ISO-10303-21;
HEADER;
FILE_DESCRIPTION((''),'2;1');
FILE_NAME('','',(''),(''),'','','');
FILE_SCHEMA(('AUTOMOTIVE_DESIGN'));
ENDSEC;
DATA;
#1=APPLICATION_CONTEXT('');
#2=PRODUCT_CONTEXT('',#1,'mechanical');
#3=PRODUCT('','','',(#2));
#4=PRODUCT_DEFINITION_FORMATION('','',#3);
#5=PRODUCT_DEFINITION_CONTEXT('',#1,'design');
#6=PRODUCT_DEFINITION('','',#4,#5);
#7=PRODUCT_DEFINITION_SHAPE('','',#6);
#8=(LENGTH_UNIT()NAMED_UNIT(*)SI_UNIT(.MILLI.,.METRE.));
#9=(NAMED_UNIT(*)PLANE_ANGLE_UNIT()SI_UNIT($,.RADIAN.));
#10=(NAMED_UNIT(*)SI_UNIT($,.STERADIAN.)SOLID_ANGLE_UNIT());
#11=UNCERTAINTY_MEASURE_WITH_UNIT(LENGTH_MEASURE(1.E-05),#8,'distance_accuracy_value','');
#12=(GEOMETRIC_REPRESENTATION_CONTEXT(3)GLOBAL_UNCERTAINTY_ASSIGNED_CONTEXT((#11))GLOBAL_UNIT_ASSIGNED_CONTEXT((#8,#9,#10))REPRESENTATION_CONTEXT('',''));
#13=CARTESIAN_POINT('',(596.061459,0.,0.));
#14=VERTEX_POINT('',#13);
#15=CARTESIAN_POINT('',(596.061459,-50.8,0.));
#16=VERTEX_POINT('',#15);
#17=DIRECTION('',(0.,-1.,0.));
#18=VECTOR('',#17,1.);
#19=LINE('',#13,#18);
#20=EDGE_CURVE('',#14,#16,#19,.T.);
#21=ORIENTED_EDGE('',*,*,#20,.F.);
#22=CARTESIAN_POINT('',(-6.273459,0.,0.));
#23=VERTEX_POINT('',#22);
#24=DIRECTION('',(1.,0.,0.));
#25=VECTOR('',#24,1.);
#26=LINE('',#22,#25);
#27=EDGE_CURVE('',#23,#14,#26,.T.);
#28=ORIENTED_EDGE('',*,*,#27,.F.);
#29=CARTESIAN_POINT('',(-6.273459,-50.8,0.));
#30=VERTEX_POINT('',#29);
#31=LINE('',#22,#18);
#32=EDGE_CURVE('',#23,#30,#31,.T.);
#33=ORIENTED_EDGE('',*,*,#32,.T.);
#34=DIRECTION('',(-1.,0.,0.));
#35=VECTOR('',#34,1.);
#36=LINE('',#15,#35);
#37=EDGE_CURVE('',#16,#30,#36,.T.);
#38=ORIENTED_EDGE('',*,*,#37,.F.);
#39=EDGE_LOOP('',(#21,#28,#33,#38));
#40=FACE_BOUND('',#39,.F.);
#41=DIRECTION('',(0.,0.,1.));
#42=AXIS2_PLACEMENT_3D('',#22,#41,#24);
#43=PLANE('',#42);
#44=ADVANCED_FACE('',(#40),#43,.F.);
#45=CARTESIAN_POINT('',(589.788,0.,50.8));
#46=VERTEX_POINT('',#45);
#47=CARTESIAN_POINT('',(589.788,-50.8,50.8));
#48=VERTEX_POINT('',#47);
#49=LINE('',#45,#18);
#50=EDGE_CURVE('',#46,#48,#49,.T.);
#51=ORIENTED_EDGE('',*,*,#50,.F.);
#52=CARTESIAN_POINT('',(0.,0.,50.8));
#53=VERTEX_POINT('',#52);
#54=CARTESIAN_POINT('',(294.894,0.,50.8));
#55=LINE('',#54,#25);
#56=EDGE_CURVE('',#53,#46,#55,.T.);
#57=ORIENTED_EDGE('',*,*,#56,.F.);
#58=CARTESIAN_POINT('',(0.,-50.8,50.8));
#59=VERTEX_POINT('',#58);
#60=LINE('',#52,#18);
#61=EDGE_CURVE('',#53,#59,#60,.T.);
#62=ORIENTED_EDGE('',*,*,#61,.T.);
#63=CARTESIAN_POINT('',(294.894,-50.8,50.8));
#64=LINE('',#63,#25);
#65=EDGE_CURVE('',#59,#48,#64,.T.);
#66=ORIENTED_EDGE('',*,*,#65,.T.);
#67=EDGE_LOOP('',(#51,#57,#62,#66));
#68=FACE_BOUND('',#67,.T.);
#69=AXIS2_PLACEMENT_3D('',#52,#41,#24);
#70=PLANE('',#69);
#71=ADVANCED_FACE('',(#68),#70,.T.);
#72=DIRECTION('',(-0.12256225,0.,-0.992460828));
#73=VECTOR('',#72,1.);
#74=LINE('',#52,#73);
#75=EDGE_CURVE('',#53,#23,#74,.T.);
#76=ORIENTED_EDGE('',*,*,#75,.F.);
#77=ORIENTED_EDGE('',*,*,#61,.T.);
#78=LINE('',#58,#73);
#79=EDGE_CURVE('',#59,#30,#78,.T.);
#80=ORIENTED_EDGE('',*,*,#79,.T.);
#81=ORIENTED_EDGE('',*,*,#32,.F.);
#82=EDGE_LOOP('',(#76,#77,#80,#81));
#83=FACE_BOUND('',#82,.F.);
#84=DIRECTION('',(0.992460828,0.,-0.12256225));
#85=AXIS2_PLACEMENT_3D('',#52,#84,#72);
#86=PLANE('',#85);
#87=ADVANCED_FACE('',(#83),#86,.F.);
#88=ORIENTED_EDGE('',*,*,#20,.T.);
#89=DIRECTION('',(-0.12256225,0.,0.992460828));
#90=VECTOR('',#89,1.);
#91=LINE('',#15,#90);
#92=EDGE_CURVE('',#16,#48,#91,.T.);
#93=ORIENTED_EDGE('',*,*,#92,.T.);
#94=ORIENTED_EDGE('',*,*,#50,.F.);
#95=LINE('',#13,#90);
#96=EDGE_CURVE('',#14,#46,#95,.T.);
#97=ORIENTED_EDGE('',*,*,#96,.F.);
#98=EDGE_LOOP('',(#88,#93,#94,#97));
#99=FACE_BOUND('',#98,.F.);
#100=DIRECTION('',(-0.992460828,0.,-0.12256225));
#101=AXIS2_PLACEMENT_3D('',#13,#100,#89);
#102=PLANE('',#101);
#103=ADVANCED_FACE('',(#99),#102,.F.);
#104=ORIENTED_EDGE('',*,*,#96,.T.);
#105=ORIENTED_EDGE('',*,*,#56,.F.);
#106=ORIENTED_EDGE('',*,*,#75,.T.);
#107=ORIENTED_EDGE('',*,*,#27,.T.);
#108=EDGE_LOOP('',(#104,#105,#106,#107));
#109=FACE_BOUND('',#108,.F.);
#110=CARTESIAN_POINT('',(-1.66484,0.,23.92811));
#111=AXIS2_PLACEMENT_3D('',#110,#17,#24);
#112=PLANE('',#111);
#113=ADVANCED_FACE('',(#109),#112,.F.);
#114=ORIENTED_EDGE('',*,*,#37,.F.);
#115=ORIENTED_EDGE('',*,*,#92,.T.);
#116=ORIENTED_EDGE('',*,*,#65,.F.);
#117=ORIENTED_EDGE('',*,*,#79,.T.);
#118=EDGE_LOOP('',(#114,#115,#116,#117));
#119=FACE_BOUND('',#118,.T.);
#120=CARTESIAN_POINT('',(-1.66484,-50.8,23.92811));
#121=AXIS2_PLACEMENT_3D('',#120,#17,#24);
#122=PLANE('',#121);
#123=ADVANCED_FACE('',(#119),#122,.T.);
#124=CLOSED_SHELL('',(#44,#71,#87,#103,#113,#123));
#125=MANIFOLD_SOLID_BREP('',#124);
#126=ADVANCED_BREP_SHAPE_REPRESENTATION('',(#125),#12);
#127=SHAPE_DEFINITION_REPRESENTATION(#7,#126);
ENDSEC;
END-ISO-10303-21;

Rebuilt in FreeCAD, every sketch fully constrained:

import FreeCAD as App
import Part
import Sketcher
from FreeCAD import Vector
Q = App.Units.Quantity

doc = App.newDocument("Part")
body = doc.addObject("PartDesign::Body", "Body")

# Sketch on XZ plane
sketch1 = body.newObject("Sketcher::SketchObject", "Sketch")
sketch1.AttachmentSupport = (doc.getObject("XZ_Plane"), [""])
sketch1.MapMode = "FlatFace"
sketch1.addGeometry([
    Part.LineSegment(Vector(0, 51, 0), Vector(0, 0, 0)),
    Part.LineSegment(Vector(0, 0, 0), Vector(590, 0, 0)),
    Part.LineSegment(Vector(590, 0, 0), Vector(590, 51, 0)),
    Part.LineSegment(Vector(590, 51, 0), Vector(0, 51, 0)),
], False)
sketch1.addConstraint([
    Sketcher.Constraint("Coincident", 0, 2, 1, 1),
    Sketcher.Constraint("Coincident", 1, 2, 2, 1),
    Sketcher.Constraint("Coincident", 2, 2, 3, 1),
    Sketcher.Constraint("Coincident", 3, 2, 0, 1),
    Sketcher.Constraint("Vertical", 0),
    Sketcher.Constraint("Horizontal", 1),
    Sketcher.Constraint("Vertical", 2),
    Sketcher.Constraint("Horizontal", 3),
    Sketcher.Constraint("Coincident", 0, 2, -1, 1),
    Sketcher.Constraint("DistanceY", 0, 2, 0, 1, Q("2 in")),
    Sketcher.Constraint("DistanceX", 1, 1, 1, 2, Q("23.22 in")),
])
pad1 = body.newObject("PartDesign::Pad", "Pad")
pad1.Profile = sketch1
pad1.Length = Q("2 in")

# Sketch on XZ plane
sketch2 = body.newObject("Sketcher::SketchObject", "Sketch001")
sketch2.AttachmentSupport = (doc.getObject("XZ_Plane"), [""])
sketch2.MapMode = "FlatFace"
sketch2.addGeometry([
    Part.LineSegment(Vector(590, 51, 0), Vector(590, 0, 0)),
    Part.LineSegment(Vector(590, 0, 0), Vector(596, 0, 0)),
    Part.LineSegment(Vector(596, 0, 0), Vector(590, 51, 0)),
], False)
sketch2.addConstraint([
    Sketcher.Constraint("Coincident", 0, 2, 1, 1),
    Sketcher.Constraint("Coincident", 1, 2, 2, 1),
    Sketcher.Constraint("Coincident", 2, 2, 0, 1),
    Sketcher.Constraint("Vertical", 0),
    Sketcher.Constraint("Horizontal", 1),
    Sketcher.Constraint("PointOnObject", 0, 2, -1),
    Sketcher.Constraint("DistanceY", 0, 2, 0, 1, Q("2 in")),
    Sketcher.Constraint("DistanceX", -1, 1, 0, 2, Q("23.22 in")),
    Sketcher.Constraint("Angle", 2, Q("97.040001 deg")),
])
pad2 = body.newObject("PartDesign::Pad", "Pad001")
pad2.Profile = sketch2
pad2.Length = Q("2 in")

# Sketch on XZ plane
sketch3 = body.newObject("Sketcher::SketchObject", "Sketch002")
sketch3.AttachmentSupport = (doc.getObject("XZ_Plane"), [""])
sketch3.MapMode = "FlatFace"
sketch3.addGeometry([
    Part.LineSegment(Vector(-6, 0, 0), Vector(0, 0, 0)),
    Part.LineSegment(Vector(0, 0, 0), Vector(0, 51, 0)),
    Part.LineSegment(Vector(0, 51, 0), Vector(-6, 0, 0)),
], False)
sketch3.addConstraint([
    Sketcher.Constraint("Coincident", 0, 2, 1, 1),
    Sketcher.Constraint("Coincident", 1, 2, 2, 1),
    Sketcher.Constraint("Coincident", 2, 2, 0, 1),
    Sketcher.Constraint("Horizontal", 0),
    Sketcher.Constraint("Vertical", 1),
    Sketcher.Constraint("Coincident", 0, 2, -1, 1),
    Sketcher.Constraint("DistanceY", 1, 1, 1, 2, Q("2 in")),
    Sketcher.Constraint("Angle", 2, Q("-97.040001 deg")),
])
pad3 = body.newObject("PartDesign::Pad", "Pad002")
pad3.Profile = sketch3
pad3.Length = Q("2 in")

doc.recompute()
